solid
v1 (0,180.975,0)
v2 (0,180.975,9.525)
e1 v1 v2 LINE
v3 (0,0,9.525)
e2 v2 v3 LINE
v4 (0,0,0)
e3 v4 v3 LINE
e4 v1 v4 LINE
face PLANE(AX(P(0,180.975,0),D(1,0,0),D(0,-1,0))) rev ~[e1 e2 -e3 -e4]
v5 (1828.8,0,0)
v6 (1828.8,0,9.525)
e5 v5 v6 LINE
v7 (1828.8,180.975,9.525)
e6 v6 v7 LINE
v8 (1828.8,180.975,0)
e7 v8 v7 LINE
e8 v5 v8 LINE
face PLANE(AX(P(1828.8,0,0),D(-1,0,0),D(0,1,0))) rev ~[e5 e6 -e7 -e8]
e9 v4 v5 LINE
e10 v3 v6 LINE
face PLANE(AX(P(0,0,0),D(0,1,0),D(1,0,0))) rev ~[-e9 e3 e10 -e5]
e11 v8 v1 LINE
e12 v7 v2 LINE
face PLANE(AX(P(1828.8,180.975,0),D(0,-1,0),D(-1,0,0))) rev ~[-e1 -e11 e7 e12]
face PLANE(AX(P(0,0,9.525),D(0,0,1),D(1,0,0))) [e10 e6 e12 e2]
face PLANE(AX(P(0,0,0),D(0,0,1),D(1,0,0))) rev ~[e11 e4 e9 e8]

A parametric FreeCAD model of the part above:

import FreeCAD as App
import Part
import Sketcher
from FreeCAD import Vector
Q = App.Units.Quantity

doc = App.newDocument("Part")
params = doc.addObject("Spreadsheet::Sheet", "Params")
for row, (alias, value) in enumerate([
    ("sketch1_width", "72 in"),
    ("sketch1_height", "7.125 in"),
    ("pad1_length", "0.375 in"),
], start=1):
    params.set(f"A{row}", alias)
    params.set(f"B{row}", "=" + value)
    params.setAlias(f"B{row}", alias)

body = doc.addObject("PartDesign::Body", "Body")

# Sketch on XY plane
sketch1 = body.newObject("Sketcher::SketchObject", "Sketch")
sketch1.AttachmentSupport = (doc.getObject("XY_Plane"), [""])
sketch1.MapMode = "FlatFace"
sketch1.addGeometry(Part.LineSegment(Vector(0, 181, 0), Vector(0, 0, 0)), False)
sketch1.addGeometry(Part.LineSegment(Vector(0, 0, 0), Vector(1829, 0, 0)), False)
sketch1.addGeometry(Part.LineSegment(Vector(1829, 0, 0), Vector(1829, 181, 0)), False)
sketch1.addGeometry(Part.LineSegment(Vector(1829, 181, 0), Vector(0, 181, 0)), False)
sketch1.addConstraint(Sketcher.Constraint("Coincident", 0, 2, 1, 1))
sketch1.addConstraint(Sketcher.Constraint("Coincident", 1, 2, 2, 1))
sketch1.addConstraint(Sketcher.Constraint("Coincident", 2, 2, 3, 1))
sketch1.addConstraint(Sketcher.Constraint("Coincident", 3, 2, 0, 1))
sketch1.addConstraint(Sketcher.Constraint("Vertical", 0))
sketch1.addConstraint(Sketcher.Constraint("Horizontal", 1))
sketch1.addConstraint(Sketcher.Constraint("Vertical", 2))
sketch1.addConstraint(Sketcher.Constraint("Horizontal", 3))
sketch1.addConstraint(Sketcher.Constraint("Coincident", 0, 2, -1, 1))
sketch1.addConstraint(Sketcher.Constraint("DistanceX", 1, 1, 1, 2, Q("72 in")))
sketch1.addConstraint(Sketcher.Constraint("DistanceY", 0, 2, 0, 1, Q("7.125 in")))
sketch1.setExpression("Constraints[9]", "Params.sketch1_width")
sketch1.setExpression("Constraints[10]", "Params.sketch1_height")
pad1 = body.newObject("PartDesign::Pad", "Pad")
pad1.Profile = sketch1
pad1.setExpression("Length", "Params.pad1_length")

doc.recompute()
